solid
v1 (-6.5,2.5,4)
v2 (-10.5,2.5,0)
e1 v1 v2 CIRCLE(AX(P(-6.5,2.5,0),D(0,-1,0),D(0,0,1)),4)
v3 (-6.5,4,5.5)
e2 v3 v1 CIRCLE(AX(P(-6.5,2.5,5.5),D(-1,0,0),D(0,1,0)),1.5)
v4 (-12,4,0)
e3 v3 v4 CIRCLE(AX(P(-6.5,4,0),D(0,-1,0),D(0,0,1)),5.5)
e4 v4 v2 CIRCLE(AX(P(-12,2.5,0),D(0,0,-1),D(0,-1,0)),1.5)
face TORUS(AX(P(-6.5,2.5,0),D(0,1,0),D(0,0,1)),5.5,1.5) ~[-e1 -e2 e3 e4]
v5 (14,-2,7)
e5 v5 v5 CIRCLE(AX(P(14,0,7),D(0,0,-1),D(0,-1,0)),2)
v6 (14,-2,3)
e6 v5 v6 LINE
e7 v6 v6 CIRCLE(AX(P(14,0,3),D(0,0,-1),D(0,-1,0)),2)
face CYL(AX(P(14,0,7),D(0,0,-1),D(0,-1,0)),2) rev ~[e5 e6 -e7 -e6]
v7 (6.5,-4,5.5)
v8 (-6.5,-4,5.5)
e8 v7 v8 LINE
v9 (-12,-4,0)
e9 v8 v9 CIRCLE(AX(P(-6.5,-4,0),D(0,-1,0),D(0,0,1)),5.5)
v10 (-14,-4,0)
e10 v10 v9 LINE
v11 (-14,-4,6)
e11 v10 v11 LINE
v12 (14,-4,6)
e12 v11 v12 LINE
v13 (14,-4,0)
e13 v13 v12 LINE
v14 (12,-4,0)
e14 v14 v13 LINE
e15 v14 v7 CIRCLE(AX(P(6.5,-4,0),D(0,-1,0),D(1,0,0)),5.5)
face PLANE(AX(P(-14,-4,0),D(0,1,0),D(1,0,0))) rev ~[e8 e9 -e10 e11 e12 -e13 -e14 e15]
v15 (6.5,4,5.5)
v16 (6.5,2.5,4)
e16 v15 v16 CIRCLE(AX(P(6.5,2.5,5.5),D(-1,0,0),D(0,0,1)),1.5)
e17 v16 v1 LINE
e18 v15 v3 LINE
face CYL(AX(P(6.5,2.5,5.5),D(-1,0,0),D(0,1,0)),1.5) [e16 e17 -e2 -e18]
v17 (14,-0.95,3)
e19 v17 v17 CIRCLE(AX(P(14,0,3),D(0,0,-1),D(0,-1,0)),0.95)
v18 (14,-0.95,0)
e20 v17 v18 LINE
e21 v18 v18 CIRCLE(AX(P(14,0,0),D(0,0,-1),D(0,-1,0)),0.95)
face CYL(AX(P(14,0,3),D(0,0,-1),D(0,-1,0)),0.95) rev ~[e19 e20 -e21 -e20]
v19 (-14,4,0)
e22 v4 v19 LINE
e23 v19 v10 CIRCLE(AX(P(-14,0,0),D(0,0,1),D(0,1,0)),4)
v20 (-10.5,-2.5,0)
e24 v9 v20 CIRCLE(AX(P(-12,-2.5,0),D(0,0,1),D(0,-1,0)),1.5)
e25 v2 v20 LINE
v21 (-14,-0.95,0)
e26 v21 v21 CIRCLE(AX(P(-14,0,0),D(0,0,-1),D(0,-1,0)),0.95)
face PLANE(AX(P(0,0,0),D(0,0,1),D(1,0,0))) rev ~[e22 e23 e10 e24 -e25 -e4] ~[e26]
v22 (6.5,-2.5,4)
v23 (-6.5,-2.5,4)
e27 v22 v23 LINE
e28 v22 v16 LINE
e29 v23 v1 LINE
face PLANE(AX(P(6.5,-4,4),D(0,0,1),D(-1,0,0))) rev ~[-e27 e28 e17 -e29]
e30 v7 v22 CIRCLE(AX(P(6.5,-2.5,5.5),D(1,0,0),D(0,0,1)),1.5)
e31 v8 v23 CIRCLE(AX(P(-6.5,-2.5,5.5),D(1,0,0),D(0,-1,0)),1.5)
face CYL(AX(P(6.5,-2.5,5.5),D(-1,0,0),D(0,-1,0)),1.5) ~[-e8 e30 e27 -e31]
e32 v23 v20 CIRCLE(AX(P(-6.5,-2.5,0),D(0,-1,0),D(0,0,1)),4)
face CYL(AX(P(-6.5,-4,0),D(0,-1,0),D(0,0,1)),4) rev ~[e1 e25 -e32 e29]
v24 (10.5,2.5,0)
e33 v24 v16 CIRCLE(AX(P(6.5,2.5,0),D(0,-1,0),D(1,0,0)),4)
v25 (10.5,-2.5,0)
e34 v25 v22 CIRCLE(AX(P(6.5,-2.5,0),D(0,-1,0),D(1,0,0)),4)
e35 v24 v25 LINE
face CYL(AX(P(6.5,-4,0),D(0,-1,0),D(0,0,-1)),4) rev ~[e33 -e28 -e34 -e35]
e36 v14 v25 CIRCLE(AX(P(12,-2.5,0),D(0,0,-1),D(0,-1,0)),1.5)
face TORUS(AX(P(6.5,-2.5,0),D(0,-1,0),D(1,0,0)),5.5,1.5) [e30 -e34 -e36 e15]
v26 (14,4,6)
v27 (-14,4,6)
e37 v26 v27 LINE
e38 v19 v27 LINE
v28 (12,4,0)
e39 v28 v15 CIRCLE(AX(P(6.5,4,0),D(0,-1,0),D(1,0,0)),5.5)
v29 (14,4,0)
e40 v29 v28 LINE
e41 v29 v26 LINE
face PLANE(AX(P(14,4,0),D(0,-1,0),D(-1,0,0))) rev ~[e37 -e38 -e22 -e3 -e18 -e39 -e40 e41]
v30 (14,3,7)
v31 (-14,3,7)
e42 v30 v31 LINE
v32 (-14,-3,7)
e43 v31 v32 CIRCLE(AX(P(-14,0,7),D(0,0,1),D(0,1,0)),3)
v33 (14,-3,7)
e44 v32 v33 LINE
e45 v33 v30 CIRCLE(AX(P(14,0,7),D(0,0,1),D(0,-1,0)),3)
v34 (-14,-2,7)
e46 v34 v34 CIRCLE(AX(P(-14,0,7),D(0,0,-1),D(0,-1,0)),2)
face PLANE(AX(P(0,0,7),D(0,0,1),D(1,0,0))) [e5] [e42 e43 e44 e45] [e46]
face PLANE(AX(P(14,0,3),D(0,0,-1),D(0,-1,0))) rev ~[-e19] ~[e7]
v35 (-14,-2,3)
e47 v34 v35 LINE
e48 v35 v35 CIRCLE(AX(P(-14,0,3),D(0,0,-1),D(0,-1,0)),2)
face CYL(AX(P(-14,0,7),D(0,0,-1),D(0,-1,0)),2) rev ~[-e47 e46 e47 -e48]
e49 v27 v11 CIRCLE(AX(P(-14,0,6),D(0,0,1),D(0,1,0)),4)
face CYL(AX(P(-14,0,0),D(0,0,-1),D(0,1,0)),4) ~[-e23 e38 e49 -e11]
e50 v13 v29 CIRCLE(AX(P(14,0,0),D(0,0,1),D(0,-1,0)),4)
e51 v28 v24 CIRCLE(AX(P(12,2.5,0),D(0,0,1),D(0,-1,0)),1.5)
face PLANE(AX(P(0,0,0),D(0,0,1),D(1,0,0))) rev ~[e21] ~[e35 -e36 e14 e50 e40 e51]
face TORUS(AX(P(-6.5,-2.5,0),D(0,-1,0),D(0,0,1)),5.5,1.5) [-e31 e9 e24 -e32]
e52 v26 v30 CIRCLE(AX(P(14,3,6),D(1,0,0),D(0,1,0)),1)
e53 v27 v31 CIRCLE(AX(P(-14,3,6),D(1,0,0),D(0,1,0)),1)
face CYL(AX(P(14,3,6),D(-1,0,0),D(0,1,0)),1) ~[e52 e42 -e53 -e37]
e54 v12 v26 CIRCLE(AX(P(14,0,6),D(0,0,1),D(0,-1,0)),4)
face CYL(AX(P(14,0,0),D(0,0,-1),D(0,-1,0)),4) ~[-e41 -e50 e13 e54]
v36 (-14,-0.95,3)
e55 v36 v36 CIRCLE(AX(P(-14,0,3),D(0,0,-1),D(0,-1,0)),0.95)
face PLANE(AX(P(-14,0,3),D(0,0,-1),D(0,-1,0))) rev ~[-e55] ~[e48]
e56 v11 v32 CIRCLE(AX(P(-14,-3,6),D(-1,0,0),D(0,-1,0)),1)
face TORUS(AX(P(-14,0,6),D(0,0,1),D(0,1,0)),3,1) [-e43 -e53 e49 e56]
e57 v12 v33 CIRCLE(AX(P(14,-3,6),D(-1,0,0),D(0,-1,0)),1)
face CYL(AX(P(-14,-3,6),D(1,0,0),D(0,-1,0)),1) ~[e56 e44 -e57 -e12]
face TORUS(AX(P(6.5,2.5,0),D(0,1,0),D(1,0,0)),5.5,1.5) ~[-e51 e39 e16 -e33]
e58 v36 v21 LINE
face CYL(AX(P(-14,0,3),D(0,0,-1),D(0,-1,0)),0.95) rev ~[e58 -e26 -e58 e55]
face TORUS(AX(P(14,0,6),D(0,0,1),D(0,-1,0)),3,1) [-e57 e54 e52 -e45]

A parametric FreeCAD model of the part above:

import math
import FreeCAD as App
import Part
import Sketcher

V = App.Vector
Q = App.Units.Quantity


def edges_at(feature, points):
    """Names of the edges that pass closest to the given points."""
    edges = feature.Shape.Edges
    near = lambda p: min(range(len(edges)), key=lambda i: edges[i].distToShape(Part.Vertex(*p))[0])
    return sorted({f"Edge{near(p) + 1}" for p in points})

doc = App.newDocument("Part")
body = doc.addObject("PartDesign::Body", "Body")

# Sketch on XY plane
sketch1 = doc.addObject("Sketcher::SketchObject", "Sketch")
body.addObject(sketch1)
sketch1.AttachmentSupport = (doc.XY_Plane, [""])
sketch1.MapMode = "FlatFace"
sketch1.addGeometry(Part.ArcOfCircle(Part.Circle(V(-14, 0, 0), V(0, 0, 1), 4), math.radians(90), math.radians(270)), False)
sketch1.addGeometry(Part.LineSegment(V(-14, -4, 0), V(14, -4, 0)), False)
sketch1.addGeometry(Part.ArcOfCircle(Part.Circle(V(14, 0, 0), V(0, 0, 1), 4), math.radians(-90), math.radians(90)), False)
sketch1.addGeometry(Part.LineSegment(V(14, 4, 0), V(-14, 4, 0)), False)
sketch1.addConstraint(Sketcher.Constraint("Tangent", 0, 2, 1, 1))
sketch1.addConstraint(Sketcher.Constraint("Tangent", 1, 2, 2, 1))
sketch1.addConstraint(Sketcher.Constraint("Tangent", 2, 2, 3, 1))
sketch1.addConstraint(Sketcher.Constraint("Tangent", 3, 2, 0, 1))
sketch1.addConstraint(Sketcher.Constraint("Horizontal", 1))
sketch1.addConstraint(Sketcher.Constraint("Horizontal", 3))
sketch1.addConstraint(Sketcher.Constraint("Symmetric", 0, 3, 2, 3, -1, 1))
sketch1.addConstraint(Sketcher.Constraint("Radius", 0, Q("4 mm")))
sketch1.addConstraint(Sketcher.Constraint("DistanceX", 1, 1, 1, 2, Q("28 mm")))
pad1 = doc.addObject("PartDesign::Pad", "Pad")
body.addObject(pad1)
pad1.Profile = sketch1
pad1.Length = 7

# Sketch on XZ plane
sketch2 = doc.addObject("Sketcher::SketchObject", "Sketch001")
body.addObject(sketch2)
sketch2.AttachmentSupport = (doc.XZ_Plane, [""])
sketch2.MapMode = "FlatFace"
sketch2.AttachmentOffset = App.Placement(V(0, 0, 4), App.Rotation())
sketch2.addGeometry(Part.ArcOfCircle(Part.Circle(V(-6.5, 0, 0), V(0, 0, 1), 4), math.radians(90), math.radians(270)), False)
sketch2.addGeometry(Part.LineSegment(V(-6.5, -4, 0), V(6.5, -4, 0)), False)
sketch2.addGeometry(Part.ArcOfCircle(Part.Circle(V(6.5, 0, 0), V(0, 0, 1), 4), math.radians(-90), math.radians(90)), False)
sketch2.addGeometry(Part.LineSegment(V(6.5, 4, 0), V(-6.5, 4, 0)), False)
sketch2.addConstraint(Sketcher.Constraint("Tangent", 0, 2, 1, 1))
sketch2.addConstraint(Sketcher.Constraint("Tangent", 1, 2, 2, 1))
sketch2.addConstraint(Sketcher.Constraint("Tangent", 2, 2, 3, 1))
sketch2.addConstraint(Sketcher.Constraint("Tangent", 3, 2, 0, 1))
sketch2.addConstraint(Sketcher.Constraint("Horizontal", 1))
sketch2.addConstraint(Sketcher.Constraint("Horizontal", 3))
sketch2.addConstraint(Sketcher.Constraint("Symmetric", 0, 3, 2, 3, -1, 1))
sketch2.addConstraint(Sketcher.Constraint("Radius", 0, Q("4 mm")))
sketch2.addConstraint(Sketcher.Constraint("DistanceX", 1, 1, 1, 2, Q("13 mm")))
pocket1 = doc.addObject("PartDesign::Pocket", "Pocket")
body.addObject(pocket1)
pocket1.Profile = sketch2
pocket1.Type = "ThroughAll"
doc.recompute()

fillet = doc.addObject("PartDesign::Fillet", "Fillet")
body.addObject(fillet)
fillet.Base = (pocket1, edges_at(pocket1, [
    (0, -4, 4),
    (9.328, -4, 2.828),
    (-9.328, -4, 2.828),
    (0, 4, 4),
    (9.328, 4, 2.828),
    (-9.328, 4, 2.828),
]))
fillet.Radius = 1.5
doc.recompute()

fillet2 = doc.addObject("PartDesign::Fillet", "Fillet001")
body.addObject(fillet2)
fillet2.Base = (fillet, edges_at(fillet, [
    (18, 0, 7),
    (0, 4, 7),
    (-18, 0, 7),
    (0, -4, 7),
]))
fillet2.Radius = 1

# Sketch on XY plane
sketch3 = doc.addObject("Sketcher::SketchObject", "Sketch002")
body.addObject(sketch3)
sketch3.AttachmentSupport = (doc.XY_Plane, [""])
sketch3.MapMode = "FlatFace"
sketch3.AttachmentOffset = App.Placement(V(0, 0, 7), App.Rotation())
sketch3.addGeometry(Part.Circle(V(14, 0, 0), V(0, 0, 1), 0.95), False)
sketch3.addGeometry(Part.Circle(V(-14, 0, 0), V(0, 0, 1), 0.95), False)
sketch3.addConstraint(Sketcher.Constraint("Equal", 0, 1))
sketch3.addConstraint(Sketcher.Constraint("Symmetric", 0, 3, 1, 3, -1, 1))
sketch3.addConstraint(Sketcher.Constraint("PointOnObject", 0, 3, -1))
sketch3.addConstraint(Sketcher.Constraint("Diameter", 0, Q("1.9 mm")))
sketch3.addConstraint(Sketcher.Constraint("DistanceX", -1, 1, 0, 3, Q("14 mm")))
doc.recompute()
hole = doc.addObject("PartDesign::Hole", "Hole")
body.addObject(hole)
hole.Profile = sketch3
hole.ThreadType = "None"
hole.Diameter = 1.9
hole.DepthType = "ThroughAll"
hole.HoleCutType = "Counterbore"
hole.HoleCutDiameter = 4
hole.HoleCutDepth = 4

doc.recompute()
